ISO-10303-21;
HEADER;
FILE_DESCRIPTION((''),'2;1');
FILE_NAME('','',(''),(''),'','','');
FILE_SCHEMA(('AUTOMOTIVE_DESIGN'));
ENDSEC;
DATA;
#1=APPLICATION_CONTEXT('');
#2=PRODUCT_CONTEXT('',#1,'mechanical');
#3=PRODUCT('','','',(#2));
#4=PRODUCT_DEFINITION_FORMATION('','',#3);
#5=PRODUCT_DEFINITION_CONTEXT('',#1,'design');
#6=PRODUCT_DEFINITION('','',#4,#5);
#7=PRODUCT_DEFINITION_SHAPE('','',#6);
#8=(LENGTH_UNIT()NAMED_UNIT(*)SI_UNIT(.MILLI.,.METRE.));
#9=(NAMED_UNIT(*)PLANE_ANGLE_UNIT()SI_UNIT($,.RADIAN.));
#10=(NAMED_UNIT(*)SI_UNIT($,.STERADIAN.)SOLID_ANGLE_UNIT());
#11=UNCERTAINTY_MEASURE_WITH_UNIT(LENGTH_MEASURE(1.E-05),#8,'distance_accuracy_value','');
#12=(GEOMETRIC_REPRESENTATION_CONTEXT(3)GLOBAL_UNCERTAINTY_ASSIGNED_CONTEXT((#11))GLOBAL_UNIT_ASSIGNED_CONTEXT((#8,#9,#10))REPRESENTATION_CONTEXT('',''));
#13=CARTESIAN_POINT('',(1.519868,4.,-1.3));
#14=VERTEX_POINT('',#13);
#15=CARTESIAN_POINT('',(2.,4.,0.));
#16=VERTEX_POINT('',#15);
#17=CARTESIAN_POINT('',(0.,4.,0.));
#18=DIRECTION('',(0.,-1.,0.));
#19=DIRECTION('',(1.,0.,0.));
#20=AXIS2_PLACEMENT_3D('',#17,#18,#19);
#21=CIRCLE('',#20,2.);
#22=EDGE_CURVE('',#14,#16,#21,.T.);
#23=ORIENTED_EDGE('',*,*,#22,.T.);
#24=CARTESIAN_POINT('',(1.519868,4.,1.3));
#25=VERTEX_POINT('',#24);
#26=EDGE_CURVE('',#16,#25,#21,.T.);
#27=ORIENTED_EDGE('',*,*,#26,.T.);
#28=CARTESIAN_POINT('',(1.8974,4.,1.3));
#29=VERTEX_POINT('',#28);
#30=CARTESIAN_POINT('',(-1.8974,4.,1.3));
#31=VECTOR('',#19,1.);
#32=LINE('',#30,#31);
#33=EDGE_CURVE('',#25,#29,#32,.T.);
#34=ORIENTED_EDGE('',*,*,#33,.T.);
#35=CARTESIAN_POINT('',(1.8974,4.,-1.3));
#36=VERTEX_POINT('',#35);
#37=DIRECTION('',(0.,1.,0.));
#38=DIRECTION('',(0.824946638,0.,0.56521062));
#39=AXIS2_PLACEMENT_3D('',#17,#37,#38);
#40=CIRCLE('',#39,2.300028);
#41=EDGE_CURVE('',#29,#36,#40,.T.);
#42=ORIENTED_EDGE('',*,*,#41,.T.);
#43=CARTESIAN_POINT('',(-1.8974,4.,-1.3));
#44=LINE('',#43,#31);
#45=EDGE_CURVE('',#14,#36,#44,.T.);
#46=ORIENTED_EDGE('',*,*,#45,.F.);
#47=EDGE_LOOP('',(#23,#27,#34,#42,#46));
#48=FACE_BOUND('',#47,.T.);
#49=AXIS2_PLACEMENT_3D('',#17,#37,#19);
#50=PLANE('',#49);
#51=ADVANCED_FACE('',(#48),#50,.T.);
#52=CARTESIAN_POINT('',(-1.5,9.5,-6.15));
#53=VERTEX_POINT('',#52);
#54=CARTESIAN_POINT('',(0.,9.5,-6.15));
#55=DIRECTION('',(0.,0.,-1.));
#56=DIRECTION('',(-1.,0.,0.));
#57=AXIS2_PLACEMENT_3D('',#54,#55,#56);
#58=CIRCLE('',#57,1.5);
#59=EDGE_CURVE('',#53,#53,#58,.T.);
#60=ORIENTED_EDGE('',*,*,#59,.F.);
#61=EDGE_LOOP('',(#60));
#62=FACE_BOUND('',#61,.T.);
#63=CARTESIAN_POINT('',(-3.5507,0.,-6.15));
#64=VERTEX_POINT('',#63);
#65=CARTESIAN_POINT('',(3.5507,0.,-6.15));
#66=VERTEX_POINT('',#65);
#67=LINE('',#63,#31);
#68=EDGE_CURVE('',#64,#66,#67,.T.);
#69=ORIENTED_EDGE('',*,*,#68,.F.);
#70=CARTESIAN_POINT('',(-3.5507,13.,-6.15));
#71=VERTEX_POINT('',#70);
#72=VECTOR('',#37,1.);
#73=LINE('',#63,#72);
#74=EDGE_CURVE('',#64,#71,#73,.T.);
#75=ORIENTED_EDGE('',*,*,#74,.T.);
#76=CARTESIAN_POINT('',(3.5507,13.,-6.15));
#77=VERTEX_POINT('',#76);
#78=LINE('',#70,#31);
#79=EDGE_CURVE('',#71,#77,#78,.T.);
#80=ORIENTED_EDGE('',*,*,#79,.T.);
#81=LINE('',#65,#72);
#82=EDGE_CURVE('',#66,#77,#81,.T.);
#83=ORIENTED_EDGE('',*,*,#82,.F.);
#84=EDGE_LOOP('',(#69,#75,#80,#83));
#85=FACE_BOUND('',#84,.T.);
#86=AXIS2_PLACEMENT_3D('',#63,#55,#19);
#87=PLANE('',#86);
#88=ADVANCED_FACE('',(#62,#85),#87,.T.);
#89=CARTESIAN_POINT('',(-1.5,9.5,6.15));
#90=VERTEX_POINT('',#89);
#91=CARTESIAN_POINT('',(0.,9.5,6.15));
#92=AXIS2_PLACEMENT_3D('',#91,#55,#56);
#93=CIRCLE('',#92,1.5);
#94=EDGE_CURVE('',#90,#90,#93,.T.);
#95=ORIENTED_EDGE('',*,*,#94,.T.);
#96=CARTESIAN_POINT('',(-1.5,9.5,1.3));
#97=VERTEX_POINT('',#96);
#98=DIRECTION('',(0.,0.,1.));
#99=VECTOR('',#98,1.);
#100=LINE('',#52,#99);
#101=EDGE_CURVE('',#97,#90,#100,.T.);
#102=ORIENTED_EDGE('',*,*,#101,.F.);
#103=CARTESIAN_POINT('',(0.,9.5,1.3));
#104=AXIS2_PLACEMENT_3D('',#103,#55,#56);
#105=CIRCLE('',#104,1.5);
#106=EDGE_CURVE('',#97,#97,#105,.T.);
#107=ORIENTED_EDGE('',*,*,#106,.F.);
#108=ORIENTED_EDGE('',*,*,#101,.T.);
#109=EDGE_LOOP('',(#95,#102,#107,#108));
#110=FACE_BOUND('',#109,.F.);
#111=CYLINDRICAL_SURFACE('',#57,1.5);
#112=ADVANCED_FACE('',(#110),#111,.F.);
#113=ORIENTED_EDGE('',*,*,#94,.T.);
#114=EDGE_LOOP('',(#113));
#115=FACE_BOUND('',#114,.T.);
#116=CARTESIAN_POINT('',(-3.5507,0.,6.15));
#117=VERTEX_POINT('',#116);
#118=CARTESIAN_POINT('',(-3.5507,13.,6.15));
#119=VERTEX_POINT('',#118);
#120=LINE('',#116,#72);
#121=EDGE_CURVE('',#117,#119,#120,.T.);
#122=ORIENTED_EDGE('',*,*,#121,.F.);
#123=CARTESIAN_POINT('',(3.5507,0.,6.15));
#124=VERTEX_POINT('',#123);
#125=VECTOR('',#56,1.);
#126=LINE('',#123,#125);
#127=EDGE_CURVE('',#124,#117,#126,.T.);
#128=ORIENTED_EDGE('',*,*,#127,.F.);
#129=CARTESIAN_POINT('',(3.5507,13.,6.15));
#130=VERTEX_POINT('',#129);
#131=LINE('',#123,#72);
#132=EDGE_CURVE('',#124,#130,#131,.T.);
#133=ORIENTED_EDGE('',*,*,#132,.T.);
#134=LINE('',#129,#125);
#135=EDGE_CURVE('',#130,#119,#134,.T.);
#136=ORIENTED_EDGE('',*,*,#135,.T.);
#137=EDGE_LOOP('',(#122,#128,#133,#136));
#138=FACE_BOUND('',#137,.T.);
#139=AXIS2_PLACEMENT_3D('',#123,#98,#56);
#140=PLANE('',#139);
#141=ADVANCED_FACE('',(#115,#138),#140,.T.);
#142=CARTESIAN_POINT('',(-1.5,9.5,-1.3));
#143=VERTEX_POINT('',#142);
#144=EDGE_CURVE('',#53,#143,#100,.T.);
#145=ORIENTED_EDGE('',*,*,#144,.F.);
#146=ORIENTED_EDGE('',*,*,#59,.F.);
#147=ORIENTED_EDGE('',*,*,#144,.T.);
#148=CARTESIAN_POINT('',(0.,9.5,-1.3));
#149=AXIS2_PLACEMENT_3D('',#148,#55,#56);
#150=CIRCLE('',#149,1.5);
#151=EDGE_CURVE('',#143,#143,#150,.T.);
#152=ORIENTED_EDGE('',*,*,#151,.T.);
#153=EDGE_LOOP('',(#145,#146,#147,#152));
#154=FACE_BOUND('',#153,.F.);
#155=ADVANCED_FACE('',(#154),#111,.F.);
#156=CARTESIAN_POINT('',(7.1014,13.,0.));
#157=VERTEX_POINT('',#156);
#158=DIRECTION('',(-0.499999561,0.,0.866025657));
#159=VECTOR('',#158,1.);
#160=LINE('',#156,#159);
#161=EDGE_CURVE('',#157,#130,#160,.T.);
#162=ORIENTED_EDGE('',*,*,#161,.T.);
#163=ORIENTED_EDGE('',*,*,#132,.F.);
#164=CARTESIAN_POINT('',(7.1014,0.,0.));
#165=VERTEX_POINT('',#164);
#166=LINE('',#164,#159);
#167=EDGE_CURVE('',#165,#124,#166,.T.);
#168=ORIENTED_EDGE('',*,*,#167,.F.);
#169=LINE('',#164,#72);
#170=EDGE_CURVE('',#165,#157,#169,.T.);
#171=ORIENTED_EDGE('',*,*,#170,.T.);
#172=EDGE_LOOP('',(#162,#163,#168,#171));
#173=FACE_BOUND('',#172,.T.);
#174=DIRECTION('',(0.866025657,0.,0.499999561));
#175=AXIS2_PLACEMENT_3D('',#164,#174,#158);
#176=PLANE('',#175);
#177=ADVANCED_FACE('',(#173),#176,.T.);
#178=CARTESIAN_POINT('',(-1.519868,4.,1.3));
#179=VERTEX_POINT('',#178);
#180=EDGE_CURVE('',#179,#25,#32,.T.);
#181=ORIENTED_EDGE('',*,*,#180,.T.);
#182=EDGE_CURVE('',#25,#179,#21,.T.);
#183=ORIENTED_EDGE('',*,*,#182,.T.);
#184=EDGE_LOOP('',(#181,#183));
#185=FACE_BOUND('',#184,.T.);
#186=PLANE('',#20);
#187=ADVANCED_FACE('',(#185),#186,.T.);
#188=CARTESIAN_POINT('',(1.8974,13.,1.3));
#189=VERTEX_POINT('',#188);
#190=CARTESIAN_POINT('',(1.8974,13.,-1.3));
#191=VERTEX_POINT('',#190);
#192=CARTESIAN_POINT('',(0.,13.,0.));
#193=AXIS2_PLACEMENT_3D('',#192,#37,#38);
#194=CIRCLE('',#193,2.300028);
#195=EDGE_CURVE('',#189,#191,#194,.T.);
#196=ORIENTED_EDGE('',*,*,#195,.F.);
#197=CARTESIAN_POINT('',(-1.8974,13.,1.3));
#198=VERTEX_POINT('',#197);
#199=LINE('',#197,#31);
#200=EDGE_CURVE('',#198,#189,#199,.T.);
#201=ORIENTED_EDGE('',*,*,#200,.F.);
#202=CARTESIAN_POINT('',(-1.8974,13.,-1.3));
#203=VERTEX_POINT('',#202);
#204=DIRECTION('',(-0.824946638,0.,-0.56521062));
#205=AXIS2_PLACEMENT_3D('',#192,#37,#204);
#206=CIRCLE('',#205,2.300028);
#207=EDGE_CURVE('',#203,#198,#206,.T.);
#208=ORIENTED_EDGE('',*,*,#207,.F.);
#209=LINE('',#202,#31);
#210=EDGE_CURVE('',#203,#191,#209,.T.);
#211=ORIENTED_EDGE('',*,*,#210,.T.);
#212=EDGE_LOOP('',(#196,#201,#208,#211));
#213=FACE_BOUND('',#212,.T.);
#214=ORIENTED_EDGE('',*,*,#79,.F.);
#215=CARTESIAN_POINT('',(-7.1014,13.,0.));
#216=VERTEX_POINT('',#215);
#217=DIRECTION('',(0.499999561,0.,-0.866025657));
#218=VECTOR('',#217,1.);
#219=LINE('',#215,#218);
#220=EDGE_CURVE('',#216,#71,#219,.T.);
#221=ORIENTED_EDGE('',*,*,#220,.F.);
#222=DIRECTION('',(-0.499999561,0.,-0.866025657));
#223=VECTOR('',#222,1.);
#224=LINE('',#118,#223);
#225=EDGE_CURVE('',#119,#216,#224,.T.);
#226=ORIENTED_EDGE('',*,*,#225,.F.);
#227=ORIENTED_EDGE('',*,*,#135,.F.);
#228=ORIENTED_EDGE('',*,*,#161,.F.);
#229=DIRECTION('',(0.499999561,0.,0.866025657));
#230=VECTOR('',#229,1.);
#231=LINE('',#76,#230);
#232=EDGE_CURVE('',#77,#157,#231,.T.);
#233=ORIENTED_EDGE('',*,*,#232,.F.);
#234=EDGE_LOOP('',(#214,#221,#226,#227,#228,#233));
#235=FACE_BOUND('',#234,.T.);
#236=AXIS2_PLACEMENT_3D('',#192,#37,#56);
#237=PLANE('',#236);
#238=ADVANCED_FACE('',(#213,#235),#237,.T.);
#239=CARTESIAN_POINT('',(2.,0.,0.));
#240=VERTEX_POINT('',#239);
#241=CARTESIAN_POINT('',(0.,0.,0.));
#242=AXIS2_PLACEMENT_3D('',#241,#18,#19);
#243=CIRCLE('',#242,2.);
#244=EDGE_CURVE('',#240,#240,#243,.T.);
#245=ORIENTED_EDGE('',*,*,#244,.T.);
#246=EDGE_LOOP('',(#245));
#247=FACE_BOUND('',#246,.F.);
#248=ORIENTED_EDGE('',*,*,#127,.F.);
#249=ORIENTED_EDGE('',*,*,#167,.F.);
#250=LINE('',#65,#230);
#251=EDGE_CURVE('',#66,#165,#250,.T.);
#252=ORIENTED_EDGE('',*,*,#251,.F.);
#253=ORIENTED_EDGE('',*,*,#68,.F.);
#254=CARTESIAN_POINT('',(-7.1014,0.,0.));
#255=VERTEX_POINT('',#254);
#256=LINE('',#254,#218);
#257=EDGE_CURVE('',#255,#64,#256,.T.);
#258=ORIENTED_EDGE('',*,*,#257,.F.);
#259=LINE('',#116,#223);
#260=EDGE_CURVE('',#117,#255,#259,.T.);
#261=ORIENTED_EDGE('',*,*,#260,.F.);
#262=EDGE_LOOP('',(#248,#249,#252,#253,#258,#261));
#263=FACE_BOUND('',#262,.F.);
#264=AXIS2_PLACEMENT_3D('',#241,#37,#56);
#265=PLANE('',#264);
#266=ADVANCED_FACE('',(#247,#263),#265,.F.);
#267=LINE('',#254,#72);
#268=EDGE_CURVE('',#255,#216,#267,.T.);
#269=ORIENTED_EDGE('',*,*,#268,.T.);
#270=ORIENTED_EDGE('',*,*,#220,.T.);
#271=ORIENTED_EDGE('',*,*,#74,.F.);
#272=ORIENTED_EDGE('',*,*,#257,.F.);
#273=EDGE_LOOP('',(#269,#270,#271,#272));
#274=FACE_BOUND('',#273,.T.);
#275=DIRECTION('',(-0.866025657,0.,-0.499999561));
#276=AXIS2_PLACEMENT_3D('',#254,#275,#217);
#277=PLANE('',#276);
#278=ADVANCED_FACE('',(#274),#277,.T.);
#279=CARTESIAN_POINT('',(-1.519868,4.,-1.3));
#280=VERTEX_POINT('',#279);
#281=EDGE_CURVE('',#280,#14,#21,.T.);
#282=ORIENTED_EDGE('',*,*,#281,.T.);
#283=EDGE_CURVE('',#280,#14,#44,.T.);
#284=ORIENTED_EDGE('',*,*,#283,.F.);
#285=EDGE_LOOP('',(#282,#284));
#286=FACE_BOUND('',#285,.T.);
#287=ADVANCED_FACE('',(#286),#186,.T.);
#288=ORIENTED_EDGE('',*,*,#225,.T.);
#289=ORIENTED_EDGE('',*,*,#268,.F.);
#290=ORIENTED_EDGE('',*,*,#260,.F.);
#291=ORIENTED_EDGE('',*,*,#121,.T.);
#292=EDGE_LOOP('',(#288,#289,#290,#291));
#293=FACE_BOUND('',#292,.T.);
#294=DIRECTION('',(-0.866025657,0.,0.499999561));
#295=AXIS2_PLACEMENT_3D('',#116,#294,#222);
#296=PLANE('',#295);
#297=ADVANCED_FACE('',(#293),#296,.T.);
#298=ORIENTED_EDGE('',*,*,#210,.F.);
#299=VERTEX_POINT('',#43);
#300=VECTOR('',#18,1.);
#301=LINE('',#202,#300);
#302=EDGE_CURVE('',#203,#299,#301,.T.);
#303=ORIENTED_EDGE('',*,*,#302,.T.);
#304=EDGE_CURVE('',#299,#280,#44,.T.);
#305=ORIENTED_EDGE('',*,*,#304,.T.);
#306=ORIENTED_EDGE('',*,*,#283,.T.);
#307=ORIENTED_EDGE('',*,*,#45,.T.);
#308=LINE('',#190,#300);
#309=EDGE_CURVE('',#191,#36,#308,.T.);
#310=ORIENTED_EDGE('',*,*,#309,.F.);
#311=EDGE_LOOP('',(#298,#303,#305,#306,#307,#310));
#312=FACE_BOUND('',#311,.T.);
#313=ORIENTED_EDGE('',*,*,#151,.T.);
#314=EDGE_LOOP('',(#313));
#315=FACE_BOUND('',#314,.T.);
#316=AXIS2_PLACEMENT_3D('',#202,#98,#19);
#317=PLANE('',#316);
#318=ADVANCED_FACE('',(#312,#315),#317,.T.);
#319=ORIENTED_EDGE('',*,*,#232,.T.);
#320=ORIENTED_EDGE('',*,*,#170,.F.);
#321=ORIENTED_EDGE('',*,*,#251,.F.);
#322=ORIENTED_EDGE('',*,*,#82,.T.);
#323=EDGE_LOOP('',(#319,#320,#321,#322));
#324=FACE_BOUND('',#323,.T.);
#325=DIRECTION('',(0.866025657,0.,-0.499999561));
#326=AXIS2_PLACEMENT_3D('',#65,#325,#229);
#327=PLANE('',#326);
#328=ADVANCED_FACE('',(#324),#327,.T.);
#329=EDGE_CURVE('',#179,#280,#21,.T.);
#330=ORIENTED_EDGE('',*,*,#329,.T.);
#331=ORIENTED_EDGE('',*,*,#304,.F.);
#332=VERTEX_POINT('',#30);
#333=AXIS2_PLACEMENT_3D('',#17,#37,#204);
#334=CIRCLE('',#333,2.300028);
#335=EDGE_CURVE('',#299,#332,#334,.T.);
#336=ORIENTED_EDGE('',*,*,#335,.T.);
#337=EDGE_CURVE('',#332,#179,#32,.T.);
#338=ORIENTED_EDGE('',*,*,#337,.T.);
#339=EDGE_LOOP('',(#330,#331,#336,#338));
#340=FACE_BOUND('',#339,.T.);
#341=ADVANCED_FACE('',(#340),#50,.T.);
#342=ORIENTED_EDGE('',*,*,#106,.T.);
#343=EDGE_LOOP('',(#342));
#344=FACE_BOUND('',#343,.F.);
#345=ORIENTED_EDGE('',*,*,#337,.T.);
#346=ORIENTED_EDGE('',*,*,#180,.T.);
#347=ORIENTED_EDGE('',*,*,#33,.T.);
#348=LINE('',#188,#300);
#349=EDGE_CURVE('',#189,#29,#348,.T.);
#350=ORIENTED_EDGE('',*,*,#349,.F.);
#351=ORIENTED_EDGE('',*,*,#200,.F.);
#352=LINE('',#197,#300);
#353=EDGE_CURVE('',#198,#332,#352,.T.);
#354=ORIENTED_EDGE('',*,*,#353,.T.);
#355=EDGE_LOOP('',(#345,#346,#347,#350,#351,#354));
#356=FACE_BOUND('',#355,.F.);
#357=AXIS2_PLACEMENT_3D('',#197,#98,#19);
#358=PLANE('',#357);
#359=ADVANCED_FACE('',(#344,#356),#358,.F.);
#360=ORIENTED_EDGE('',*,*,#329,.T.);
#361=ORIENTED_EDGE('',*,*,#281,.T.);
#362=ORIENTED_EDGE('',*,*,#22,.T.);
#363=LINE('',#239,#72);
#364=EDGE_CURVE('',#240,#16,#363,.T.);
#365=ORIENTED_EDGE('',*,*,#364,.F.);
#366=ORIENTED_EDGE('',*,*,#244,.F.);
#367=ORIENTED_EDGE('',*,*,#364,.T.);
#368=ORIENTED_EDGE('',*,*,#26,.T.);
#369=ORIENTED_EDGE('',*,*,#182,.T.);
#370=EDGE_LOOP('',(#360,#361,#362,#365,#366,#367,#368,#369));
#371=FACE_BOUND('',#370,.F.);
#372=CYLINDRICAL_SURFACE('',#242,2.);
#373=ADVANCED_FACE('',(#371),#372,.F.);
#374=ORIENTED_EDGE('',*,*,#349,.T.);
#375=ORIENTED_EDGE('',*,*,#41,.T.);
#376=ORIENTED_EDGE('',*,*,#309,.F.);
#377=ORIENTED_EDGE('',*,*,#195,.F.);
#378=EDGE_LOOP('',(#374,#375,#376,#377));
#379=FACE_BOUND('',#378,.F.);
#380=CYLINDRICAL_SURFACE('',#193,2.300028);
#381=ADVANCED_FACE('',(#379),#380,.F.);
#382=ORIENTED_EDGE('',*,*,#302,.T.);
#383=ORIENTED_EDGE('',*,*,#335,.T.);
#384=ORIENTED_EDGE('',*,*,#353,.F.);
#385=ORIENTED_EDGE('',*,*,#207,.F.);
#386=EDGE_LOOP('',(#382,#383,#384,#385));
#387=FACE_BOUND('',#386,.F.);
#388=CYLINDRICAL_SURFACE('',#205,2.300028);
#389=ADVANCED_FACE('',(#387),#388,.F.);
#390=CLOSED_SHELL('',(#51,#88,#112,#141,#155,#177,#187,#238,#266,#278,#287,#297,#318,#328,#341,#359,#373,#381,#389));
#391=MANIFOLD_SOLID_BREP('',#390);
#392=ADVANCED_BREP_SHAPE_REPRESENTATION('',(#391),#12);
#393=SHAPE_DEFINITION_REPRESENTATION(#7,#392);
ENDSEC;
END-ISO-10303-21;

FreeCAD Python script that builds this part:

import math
import FreeCAD as App
import Part
import Sketcher
from FreeCAD import Vector
Q = App.Units.Quantity

doc = App.newDocument("Part")
params = doc.addObject("Spreadsheet::Sheet", "Params")
for row, (alias, value) in enumerate([
    ("pad1_length", "13 mm"),
    ("sketch2_radius", "2.3 mm"),
    ("pocket1_length", "9 mm"),
    ("sketch3_diameter", "4 mm"),
    ("pocket2_length", "4 mm"),
    ("sketch4_diameter", "3 mm"),
], start=1):
    params.set(f"A{row}", alias)
    params.set(f"B{row}", "=" + value)
    params.setAlias(f"B{row}", alias)

body = doc.addObject("PartDesign::Body", "Body")

sketch1 = body.newObject("Sketcher::SketchObject", "Sketch")
sketch1.AttachmentSupport = (doc.getObject("XZ_Plane"), [""])
sketch1.MapMode = "FlatFace"
sketch1.addGeometry(Part.LineSegment(Vector(-4, -6, 0), Vector(-7, 0, 0)), False)
sketch1.addGeometry(Part.LineSegment(Vector(-7, 0, 0), Vector(-4, 6, 0)), False)
sketch1.addGeometry(Part.LineSegment(Vector(-4, 6, 0), Vector(4, 6, 0)), False)
sketch1.addGeometry(Part.LineSegment(Vector(4, 6, 0), Vector(7, 0, 0)), False)
sketch1.addGeometry(Part.LineSegment(Vector(7, 0, 0), Vector(4, -6, 0)), False)
sketch1.addGeometry(Part.LineSegment(Vector(4, -6, 0), Vector(-4, -6, 0)), False)
sketch1.addConstraint(Sketcher.Constraint("Coincident", 0, 2, 1, 1))
sketch1.addConstraint(Sketcher.Constraint("Coincident", 1, 2, 2, 1))
sketch1.addConstraint(Sketcher.Constraint("Coincident", 2, 2, 3, 1))
sketch1.addConstraint(Sketcher.Constraint("Coincident", 3, 2, 4, 1))
sketch1.addConstraint(Sketcher.Constraint("Coincident", 4, 2, 5, 1))
sketch1.addConstraint(Sketcher.Constraint("Coincident", 5, 2, 0, 1))
sketch1.addConstraint(Sketcher.Constraint("Horizontal", 2))
sketch1.addConstraint(Sketcher.Constraint("Horizontal", 5))
sketch1.addConstraint(Sketcher.Constraint("Symmetric", 0, 2, 3, 2, -1, 1))
sketch1.addConstraint(Sketcher.Constraint("Symmetric", 1, 2, 4, 2, -1, 1))
sketch1.addConstraint(Sketcher.Constraint("PointOnObject", 0, 2, -1))
sketch1.addConstraint(Sketcher.Constraint("Parallel", 0, 3))
sketch1.addConstraint(Sketcher.Constraint("Vertical", 2, 2, 4, 2))
sketch1.addConstraint(Sketcher.Constraint("DistanceY", 4, 2, 2, 2, Q("12.3 mm")))
sketch1.addConstraint(Sketcher.Constraint("Angle", 0, Q("120 deg")))
sketch1.addConstraint(Sketcher.Constraint("DistanceX", 2, 1, 2, 2, Q("7.1014 mm")))
pad1 = body.newObject("PartDesign::Pad", "Pad")
pad1.Profile = sketch1
pad1.setExpression("Length", "Params.pad1_length")
pad1.Reversed = True

sketch2 = body.newObject("Sketcher::SketchObject", "Sketch001")
sketch2.AttachmentSupport = (doc.getObject("XZ_Plane"), [""])
sketch2.MapMode = "FlatFace"
sketch2.AttachmentOffset = App.Placement(Vector(0, 0, -13), App.Rotation())
sketch2.addGeometry(Part.LineSegment(Vector(1.9, -1.3, 0), Vector(-1.9, -1.3, 0)), False)
sketch2.addGeometry(Part.ArcOfCircle(Part.Circle(Vector(0, 0, 0), Vector(0, 0, 1), 2.3), math.radians(146), math.radians(214)), False)
sketch2.addGeometry(Part.LineSegment(Vector(-1.9, 1.3, 0), Vector(1.9, 1.3, 0)), False)
sketch2.addGeometry(Part.ArcOfCircle(Part.Circle(Vector(0, 0, 0), Vector(0, 0, 1), 2.3), math.radians(-34), math.radians(34)), False)
sketch2.addConstraint(Sketcher.Constraint("Coincident", 0, 2, 1, 2))
sketch2.addConstraint(Sketcher.Constraint("Coincident", 1, 1, 2, 1))
sketch2.addConstraint(Sketcher.Constraint("Coincident", 2, 2, 3, 2))
sketch2.addConstraint(Sketcher.Constraint("Coincident", 3, 1, 0, 1))
sketch2.addConstraint(Sketcher.Constraint("Horizontal", 0))
sketch2.addConstraint(Sketcher.Constraint("Horizontal", 2))
sketch2.addConstraint(Sketcher.Constraint("Coincident", 1, 3, -1, 1))
sketch2.addConstraint(Sketcher.Constraint("Coincident", 3, 3, -1, 1))
sketch2.addConstraint(Sketcher.Constraint("Equal", 1, 3))
sketch2.addConstraint(Sketcher.Constraint("Vertical", 0, 2, 1, 1))
sketch2.addConstraint(Sketcher.Constraint("Radius", 1, Q("2.3 mm")))
sketch2.addConstraint(Sketcher.Constraint("DistanceY", 0, 2, 1, 1, Q("2.6 mm")))
sketch2.setExpression("Constraints[10]", "Params.sketch2_radius")
pocket1 = body.newObject("PartDesign::Pocket", "Pocket")
pocket1.Profile = sketch2
pocket1.setExpression("Length", "Params.pocket1_length")
pocket1.Reversed = True

sketch3 = body.newObject("Sketcher::SketchObject", "Sketch002")
sketch3.AttachmentSupport = (doc.getObject("XZ_Plane"), [""])
sketch3.MapMode = "FlatFace"
sketch3.addGeometry(Part.Circle(Vector(0, 0, 0), Vector(0, 0, 1), 2), False)
sketch3.addConstraint(Sketcher.Constraint("Coincident", 0, 3, -1, 1))
sketch3.addConstraint(Sketcher.Constraint("Diameter", 0, Q("4 mm")))
sketch3.setExpression("Constraints[1]", "Params.sketch3_diameter")
pocket2 = body.newObject("PartDesign::Pocket", "Pocket001")
pocket2.Profile = sketch3
pocket2.setExpression("Length", "Params.pocket2_length")

sketch4 = body.newObject("Sketcher::SketchObject", "Sketch003")
sketch4.AttachmentSupport = (doc.getObject("XY_Plane"), [""])
sketch4.MapMode = "FlatFace"
sketch4.AttachmentOffset = App.Placement(Vector(0, 0, -6.15), App.Rotation())
sketch4.addGeometry(Part.Circle(Vector(0, 9.5, 0), Vector(0, 0, 1), 1.5), False)
sketch4.addConstraint(Sketcher.Constraint("PointOnObject", 0, 3, -2))
sketch4.addConstraint(Sketcher.Constraint("Diameter", 0, Q("3 mm")))
sketch4.addConstraint(Sketcher.Constraint("DistanceY", -1, 1, 0, 3, Q("9.5 mm")))
sketch4.setExpression("Constraints[1]", "Params.sketch4_diameter")
pocket3 = body.newObject("PartDesign::Pocket", "Pocket002")
pocket3.Profile = sketch4
pocket3.Type = "ThroughAll"
pocket3.Reversed = True

doc.recompute()
